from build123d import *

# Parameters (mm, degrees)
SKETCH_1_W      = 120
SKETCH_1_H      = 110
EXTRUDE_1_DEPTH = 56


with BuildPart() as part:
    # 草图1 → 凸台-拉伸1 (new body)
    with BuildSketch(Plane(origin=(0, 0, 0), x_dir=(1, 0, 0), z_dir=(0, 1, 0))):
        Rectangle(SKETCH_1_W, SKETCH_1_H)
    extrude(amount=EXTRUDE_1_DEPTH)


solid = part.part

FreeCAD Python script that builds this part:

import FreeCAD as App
import Part
import Sketcher


def add_polygon(sketch, points):
    """Adds a closed chain of lines whose ends are joined by coincident constraints."""
    first, n = sketch.GeometryCount, len(points)
    for a, b in zip(points, points[1:] + points[:1]):
        sketch.addGeometry(Part.LineSegment(App.Vector(*a, 0), App.Vector(*b, 0)), False)
    for i in range(n):
        sketch.addConstraint(Sketcher.Constraint("Coincident", first + i, 2, first + (i + 1) % n, 1))

doc = App.newDocument("Part")
body = doc.addObject("PartDesign::Body", "Body")

sketch1 = body.newObject("Sketcher::SketchObject", "Sketch")
sketch1.AttachmentSupport = (doc.getObject("XZ_Plane"), [""])
sketch1.MapMode = "FlatFace"
add_polygon(sketch1, [(-60, -55), (-60, 55), (60, 55), (60, -55)])
sketch1.addConstraint([
    Sketcher.Constraint("Vertical", 0),
    Sketcher.Constraint("Horizontal", 1),
    Sketcher.Constraint("Vertical", 2),
    Sketcher.Constraint("Horizontal", 3),
    Sketcher.Constraint("Symmetric", 0, 2, 2, 2, -1, 1),
    Sketcher.Constraint("DistanceX", 1, 1, 1, 2, 120.0),
    Sketcher.Constraint("DistanceY", 0, 1, 0, 2, 110.0),
])
pad1 = body.newObject("PartDesign::Pad", "Pad")
pad1.Profile = sketch1
pad1.Length = 56
pad1.Reversed = True

doc.recompute()
